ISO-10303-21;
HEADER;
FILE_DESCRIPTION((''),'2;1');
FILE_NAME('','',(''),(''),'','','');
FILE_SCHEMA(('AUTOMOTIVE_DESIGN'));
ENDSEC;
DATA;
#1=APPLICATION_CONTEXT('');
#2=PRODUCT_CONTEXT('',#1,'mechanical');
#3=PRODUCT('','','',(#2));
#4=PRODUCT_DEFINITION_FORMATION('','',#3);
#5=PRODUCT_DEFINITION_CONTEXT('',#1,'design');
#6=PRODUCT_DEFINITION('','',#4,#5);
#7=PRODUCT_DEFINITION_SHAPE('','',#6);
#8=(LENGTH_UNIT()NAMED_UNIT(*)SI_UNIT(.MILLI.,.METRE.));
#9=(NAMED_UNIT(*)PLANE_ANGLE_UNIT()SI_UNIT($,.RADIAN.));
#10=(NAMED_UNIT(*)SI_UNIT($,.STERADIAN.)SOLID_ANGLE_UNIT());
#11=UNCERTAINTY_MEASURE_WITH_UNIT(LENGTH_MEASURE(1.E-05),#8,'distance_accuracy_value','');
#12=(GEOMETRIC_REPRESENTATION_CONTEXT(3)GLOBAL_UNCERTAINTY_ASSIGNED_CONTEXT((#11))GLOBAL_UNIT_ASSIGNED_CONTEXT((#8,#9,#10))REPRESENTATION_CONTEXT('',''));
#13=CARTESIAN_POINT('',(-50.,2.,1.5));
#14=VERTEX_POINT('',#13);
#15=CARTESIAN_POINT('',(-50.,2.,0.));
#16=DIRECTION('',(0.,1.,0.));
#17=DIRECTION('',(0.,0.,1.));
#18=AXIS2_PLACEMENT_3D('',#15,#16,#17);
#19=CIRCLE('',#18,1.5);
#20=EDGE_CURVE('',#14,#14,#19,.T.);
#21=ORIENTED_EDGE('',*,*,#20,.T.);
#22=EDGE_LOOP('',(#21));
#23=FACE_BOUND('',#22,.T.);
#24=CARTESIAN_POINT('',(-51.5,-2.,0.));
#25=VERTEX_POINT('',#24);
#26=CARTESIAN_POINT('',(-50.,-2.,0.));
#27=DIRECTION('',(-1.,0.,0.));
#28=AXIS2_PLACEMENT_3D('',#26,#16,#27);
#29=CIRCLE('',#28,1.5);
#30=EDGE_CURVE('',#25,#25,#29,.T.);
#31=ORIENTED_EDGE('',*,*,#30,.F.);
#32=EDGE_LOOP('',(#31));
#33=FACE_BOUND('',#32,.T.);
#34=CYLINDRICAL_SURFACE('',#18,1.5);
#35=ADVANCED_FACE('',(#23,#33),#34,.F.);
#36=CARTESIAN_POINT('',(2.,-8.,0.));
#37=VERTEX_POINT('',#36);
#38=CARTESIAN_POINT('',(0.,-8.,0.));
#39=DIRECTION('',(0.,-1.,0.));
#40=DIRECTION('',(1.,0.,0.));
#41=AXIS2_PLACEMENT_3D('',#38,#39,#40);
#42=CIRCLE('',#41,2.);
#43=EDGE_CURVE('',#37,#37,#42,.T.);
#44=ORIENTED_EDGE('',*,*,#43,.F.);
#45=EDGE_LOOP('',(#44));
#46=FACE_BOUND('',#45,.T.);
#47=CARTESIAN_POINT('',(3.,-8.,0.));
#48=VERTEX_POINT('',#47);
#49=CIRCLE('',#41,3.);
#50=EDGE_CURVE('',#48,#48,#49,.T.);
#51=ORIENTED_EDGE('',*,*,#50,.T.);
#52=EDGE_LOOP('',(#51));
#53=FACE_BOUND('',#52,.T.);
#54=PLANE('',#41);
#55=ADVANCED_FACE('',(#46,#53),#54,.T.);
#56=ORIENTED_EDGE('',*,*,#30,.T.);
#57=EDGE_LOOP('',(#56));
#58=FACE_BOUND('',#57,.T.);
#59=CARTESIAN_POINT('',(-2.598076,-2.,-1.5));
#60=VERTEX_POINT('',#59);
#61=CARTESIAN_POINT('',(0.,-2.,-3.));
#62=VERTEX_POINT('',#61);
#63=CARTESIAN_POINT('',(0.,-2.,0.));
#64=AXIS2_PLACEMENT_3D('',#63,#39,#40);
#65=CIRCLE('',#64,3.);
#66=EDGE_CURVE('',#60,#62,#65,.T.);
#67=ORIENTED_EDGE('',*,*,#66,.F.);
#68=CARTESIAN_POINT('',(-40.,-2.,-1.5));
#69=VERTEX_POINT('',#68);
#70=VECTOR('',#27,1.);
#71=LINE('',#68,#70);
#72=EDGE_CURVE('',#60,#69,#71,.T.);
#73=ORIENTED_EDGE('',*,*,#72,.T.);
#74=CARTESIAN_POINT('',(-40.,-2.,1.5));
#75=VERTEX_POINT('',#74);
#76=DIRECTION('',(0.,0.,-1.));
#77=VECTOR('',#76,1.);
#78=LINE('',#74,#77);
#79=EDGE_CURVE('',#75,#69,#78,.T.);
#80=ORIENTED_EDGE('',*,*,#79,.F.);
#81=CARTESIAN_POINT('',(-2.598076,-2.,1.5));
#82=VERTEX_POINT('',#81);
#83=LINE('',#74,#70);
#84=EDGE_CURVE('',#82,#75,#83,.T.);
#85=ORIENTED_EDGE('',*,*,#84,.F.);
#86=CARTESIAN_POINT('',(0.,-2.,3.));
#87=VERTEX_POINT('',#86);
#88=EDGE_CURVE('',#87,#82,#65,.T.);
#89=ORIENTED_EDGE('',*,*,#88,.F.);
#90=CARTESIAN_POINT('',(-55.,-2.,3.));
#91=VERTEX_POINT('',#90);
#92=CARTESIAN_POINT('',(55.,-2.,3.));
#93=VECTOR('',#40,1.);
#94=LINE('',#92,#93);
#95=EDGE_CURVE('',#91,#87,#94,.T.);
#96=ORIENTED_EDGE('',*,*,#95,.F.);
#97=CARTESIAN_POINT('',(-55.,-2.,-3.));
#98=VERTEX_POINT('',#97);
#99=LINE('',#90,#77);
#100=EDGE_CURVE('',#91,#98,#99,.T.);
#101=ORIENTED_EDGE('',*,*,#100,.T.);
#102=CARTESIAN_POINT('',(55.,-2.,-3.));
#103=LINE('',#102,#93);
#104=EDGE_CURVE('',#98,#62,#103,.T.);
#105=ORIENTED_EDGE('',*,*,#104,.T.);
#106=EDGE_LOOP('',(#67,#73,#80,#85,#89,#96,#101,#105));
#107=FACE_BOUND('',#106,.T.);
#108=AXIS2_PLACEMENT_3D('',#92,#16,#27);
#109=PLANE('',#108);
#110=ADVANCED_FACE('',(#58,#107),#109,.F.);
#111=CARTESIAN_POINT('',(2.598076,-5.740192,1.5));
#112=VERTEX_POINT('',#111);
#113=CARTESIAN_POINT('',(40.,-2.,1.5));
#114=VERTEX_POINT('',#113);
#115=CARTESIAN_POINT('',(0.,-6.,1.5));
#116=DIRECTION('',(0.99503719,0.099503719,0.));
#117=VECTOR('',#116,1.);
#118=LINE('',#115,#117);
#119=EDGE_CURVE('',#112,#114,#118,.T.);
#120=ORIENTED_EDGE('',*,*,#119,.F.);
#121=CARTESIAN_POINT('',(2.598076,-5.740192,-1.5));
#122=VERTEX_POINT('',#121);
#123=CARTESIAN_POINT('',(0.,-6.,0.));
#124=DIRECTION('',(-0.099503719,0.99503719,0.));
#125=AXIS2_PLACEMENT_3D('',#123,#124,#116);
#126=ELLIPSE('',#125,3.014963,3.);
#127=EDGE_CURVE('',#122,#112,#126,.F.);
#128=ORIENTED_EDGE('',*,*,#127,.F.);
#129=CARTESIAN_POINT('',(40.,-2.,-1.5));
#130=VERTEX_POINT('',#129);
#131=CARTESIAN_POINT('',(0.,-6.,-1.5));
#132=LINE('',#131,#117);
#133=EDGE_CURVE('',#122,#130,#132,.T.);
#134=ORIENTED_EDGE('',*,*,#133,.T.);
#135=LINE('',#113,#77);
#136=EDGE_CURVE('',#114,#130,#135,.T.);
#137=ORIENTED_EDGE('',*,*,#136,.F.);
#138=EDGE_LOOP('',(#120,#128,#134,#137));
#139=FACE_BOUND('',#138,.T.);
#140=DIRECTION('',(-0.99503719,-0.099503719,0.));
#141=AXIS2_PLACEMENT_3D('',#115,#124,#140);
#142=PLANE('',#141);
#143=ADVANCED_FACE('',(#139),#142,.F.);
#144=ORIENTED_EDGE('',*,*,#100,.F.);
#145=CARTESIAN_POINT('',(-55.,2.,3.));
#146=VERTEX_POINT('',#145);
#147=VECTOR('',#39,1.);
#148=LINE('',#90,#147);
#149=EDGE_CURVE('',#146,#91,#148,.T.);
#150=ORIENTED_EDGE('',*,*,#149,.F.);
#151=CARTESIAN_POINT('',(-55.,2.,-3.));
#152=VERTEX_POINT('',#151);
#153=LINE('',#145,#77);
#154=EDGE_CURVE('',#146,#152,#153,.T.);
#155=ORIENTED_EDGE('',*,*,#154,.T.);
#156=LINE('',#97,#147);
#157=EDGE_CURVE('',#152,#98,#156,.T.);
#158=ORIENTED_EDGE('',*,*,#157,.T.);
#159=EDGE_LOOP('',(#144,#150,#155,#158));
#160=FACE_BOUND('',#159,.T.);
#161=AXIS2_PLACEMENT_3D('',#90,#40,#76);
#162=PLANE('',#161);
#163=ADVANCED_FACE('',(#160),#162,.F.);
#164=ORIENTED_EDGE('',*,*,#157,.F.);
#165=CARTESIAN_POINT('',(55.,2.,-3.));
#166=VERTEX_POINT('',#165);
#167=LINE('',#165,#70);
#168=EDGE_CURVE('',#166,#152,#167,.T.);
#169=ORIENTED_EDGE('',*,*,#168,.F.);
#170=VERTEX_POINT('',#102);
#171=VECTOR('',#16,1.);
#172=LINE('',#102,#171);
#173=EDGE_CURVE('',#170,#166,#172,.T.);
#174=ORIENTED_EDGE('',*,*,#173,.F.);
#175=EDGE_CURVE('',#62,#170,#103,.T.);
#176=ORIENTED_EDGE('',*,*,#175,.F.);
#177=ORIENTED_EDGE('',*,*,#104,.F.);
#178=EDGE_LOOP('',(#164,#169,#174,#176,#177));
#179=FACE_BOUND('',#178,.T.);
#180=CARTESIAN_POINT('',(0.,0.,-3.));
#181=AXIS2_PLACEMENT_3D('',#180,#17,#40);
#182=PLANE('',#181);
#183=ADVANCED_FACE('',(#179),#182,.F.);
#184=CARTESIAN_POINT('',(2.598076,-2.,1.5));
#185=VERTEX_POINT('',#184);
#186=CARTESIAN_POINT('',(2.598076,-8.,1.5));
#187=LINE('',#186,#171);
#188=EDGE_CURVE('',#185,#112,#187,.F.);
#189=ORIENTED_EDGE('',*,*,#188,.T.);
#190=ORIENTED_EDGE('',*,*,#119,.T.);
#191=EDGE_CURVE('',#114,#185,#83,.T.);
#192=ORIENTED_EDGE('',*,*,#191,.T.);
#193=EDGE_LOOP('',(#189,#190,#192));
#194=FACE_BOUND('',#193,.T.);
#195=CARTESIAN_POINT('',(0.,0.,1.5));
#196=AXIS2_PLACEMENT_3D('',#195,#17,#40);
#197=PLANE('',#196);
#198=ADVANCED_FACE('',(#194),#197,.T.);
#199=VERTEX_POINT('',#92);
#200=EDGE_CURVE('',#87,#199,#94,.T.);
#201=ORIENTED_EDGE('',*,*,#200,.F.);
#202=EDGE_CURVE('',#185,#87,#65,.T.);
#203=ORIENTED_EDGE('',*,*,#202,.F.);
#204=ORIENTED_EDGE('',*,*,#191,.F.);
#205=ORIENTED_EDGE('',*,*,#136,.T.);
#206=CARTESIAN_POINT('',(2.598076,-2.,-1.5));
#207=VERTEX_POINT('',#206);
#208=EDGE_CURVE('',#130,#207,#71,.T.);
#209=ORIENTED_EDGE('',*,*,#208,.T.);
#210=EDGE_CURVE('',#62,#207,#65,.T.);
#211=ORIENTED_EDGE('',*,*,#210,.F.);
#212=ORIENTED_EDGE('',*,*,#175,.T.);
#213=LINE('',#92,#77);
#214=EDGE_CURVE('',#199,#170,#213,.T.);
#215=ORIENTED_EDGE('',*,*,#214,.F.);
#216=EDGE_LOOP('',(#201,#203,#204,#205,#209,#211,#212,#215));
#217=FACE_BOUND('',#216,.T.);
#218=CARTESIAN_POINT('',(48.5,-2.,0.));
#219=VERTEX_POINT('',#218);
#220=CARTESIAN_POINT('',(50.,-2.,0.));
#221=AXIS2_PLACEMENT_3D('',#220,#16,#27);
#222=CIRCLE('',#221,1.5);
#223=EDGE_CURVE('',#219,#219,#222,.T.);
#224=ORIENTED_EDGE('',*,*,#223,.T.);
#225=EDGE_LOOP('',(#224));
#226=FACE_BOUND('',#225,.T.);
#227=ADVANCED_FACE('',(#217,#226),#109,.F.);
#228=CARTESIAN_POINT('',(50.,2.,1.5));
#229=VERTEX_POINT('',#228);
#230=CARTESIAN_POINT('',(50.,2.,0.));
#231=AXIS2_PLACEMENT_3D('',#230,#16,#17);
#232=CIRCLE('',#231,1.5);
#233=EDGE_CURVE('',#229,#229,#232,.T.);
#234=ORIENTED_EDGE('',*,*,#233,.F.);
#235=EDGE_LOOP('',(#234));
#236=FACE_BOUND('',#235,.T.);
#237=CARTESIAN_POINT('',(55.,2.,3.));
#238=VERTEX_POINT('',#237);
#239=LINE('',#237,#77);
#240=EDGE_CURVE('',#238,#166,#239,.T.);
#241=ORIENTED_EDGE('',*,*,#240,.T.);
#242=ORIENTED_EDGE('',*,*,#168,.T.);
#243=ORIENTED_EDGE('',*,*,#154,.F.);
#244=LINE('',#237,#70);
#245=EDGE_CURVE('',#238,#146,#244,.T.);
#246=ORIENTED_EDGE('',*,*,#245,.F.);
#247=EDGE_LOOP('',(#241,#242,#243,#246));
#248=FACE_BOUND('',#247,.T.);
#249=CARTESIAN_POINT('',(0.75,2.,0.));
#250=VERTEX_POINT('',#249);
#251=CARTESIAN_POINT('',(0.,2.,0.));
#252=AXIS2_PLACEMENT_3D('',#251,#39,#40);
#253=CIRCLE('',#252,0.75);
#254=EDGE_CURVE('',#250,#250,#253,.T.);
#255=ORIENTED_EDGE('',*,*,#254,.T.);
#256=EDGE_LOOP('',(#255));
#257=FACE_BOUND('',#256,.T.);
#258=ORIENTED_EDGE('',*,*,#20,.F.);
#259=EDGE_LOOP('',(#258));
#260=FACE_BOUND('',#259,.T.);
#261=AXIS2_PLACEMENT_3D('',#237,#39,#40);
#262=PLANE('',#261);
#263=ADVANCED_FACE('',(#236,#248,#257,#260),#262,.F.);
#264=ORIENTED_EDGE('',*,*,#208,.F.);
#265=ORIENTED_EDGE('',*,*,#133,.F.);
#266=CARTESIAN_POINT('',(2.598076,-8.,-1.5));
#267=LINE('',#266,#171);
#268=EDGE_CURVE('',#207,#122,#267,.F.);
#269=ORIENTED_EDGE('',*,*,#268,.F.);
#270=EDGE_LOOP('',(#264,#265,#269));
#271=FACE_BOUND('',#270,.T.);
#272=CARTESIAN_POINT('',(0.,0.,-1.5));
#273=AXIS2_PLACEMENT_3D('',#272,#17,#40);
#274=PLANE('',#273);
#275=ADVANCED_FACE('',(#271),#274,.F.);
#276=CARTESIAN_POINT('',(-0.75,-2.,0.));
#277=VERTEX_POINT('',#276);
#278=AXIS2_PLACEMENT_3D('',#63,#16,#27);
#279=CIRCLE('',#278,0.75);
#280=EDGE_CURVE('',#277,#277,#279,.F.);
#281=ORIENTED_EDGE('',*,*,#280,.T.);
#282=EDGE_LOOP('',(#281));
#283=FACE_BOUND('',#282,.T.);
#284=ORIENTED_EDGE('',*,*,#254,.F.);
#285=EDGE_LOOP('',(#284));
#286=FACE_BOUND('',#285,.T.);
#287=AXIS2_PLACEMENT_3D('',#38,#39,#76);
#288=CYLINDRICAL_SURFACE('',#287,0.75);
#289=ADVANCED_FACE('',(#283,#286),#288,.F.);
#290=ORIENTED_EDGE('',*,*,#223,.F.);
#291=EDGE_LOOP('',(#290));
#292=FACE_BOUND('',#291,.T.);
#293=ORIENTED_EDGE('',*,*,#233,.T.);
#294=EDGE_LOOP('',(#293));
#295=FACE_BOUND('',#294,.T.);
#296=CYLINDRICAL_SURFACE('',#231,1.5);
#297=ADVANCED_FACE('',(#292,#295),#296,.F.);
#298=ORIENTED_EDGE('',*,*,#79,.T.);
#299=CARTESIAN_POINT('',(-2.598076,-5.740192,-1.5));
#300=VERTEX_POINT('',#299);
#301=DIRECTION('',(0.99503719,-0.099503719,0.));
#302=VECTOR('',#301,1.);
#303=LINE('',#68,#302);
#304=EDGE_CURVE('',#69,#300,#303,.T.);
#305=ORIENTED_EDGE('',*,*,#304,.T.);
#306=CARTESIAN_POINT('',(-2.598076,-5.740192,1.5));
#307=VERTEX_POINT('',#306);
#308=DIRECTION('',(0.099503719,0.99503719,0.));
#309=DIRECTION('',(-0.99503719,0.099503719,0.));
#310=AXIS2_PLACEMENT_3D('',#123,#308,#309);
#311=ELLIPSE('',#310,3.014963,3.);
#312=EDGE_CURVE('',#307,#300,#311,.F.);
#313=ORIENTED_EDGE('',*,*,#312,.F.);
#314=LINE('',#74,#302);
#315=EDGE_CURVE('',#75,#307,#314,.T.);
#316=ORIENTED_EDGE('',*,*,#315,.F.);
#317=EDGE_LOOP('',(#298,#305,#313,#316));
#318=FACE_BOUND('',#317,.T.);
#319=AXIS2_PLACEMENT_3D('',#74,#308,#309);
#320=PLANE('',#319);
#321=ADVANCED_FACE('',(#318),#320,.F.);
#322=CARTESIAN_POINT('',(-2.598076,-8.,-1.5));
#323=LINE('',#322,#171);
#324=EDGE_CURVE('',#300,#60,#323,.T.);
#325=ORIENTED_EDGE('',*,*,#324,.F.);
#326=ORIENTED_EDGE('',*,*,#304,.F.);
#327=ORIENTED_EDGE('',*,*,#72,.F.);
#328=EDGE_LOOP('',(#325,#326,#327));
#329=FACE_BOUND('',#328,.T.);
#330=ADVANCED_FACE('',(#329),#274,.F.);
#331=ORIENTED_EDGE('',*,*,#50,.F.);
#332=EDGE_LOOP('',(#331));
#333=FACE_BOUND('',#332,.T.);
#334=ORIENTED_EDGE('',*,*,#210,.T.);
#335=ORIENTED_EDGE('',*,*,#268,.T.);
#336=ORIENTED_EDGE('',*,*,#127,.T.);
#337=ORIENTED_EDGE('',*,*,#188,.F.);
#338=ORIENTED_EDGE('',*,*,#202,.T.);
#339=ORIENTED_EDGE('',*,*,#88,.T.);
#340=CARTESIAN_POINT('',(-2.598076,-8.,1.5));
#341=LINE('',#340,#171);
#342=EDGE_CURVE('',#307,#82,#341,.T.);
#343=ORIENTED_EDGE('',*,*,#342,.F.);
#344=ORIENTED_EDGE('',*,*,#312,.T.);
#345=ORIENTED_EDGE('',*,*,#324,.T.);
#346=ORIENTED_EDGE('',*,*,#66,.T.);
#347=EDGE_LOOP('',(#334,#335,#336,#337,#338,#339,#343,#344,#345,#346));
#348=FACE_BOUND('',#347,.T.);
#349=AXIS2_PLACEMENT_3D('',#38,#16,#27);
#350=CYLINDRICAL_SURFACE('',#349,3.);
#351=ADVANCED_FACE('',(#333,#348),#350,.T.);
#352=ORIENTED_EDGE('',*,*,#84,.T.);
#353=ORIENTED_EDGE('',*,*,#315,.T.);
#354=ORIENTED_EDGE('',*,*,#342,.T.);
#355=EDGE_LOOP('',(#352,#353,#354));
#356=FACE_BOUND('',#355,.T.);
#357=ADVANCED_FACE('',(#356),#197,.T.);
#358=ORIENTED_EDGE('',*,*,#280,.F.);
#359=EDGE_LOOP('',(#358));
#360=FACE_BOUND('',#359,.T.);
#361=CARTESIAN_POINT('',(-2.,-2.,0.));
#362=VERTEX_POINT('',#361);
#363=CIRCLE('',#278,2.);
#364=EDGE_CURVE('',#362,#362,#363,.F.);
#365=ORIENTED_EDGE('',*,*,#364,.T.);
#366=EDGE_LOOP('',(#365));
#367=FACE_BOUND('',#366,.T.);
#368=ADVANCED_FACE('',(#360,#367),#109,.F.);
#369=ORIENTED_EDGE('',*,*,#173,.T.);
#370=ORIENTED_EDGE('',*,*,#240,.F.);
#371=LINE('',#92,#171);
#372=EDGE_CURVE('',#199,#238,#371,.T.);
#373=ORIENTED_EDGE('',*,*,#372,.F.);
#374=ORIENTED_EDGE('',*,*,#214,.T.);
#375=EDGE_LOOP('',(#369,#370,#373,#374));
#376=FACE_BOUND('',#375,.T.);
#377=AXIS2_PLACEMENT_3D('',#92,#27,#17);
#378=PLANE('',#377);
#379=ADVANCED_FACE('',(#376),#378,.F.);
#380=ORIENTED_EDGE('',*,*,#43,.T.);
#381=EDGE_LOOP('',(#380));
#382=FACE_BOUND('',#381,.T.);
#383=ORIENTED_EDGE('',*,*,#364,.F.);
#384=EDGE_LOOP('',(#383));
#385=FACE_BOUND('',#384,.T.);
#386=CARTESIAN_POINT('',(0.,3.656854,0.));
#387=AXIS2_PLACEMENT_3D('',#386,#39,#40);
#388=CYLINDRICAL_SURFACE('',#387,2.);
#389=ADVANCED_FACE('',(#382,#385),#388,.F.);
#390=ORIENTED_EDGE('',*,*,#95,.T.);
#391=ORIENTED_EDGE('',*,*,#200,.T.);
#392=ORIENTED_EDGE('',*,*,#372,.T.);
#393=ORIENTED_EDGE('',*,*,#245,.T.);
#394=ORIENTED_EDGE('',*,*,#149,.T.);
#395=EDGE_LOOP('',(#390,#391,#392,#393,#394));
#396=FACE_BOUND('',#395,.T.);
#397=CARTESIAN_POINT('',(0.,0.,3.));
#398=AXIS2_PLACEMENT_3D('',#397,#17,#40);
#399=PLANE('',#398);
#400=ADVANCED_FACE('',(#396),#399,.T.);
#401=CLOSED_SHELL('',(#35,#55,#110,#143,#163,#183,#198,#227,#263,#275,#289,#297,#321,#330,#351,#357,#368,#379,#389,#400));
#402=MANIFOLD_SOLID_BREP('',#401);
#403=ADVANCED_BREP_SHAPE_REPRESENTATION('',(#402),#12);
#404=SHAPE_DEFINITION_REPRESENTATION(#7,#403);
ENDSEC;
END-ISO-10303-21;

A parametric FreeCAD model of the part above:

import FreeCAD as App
import Part
import Sketcher
from FreeCAD import Vector
Q = App.Units.Quantity

doc = App.newDocument("Part")
body = doc.addObject("PartDesign::Body", "Body")

# Sketch on XY plane
sketch1 = body.newObject("Sketcher::SketchObject", "Sketch")
sketch1.AttachmentSupport = (doc.getObject("XY_Plane"), [""])
sketch1.MapMode = "FlatFace"
sketch1.addGeometry([
    Part.LineSegment(Vector(-55, 2, 0), Vector(-55, -2, 0)),
    Part.LineSegment(Vector(-55, -2, 0), Vector(55, -2, 0)),
    Part.LineSegment(Vector(55, -2, 0), Vector(55, 2, 0)),
    Part.LineSegment(Vector(55, 2, 0), Vector(-55, 2, 0)),
], False)
sketch1.addConstraint([
    Sketcher.Constraint("Coincident", 0, 2, 1, 1),
    Sketcher.Constraint("Coincident", 1, 2, 2, 1),
    Sketcher.Constraint("Coincident", 2, 2, 3, 1),
    Sketcher.Constraint("Coincident", 3, 2, 0, 1),
    Sketcher.Constraint("Vertical", 0),
    Sketcher.Constraint("Horizontal", 1),
    Sketcher.Constraint("Vertical", 2),
    Sketcher.Constraint("Horizontal", 3),
    Sketcher.Constraint("Symmetric", 0, 2, 2, 2, -1, 1),
    Sketcher.Constraint("DistanceX", 1, 1, 1, 2, Q("110 mm")),
    Sketcher.Constraint("DistanceY", 0, 2, 0, 1, Q("4 mm")),
])
pad1 = body.newObject("PartDesign::Pad", "Pad")
pad1.Profile = sketch1
pad1.Length = 6
pad1.Midplane = True

# Sketch on XY plane
sketch2 = body.newObject("Sketcher::SketchObject", "Sketch001")
sketch2.AttachmentSupport = (doc.getObject("XY_Plane"), [""])
sketch2.MapMode = "FlatFace"
sketch2.addGeometry([
    Part.LineSegment(Vector(-40, -2, 0), Vector(0, -6, 0)),
    Part.LineSegment(Vector(0, -6, 0), Vector(40, -2, 0)),
    Part.LineSegment(Vector(40, -2, 0), Vector(-40, -2, 0)),
], False)
sketch2.addConstraint([
    Sketcher.Constraint("Coincident", 0, 2, 1, 1),
    Sketcher.Constraint("Coincident", 1, 2, 2, 1),
    Sketcher.Constraint("Coincident", 2, 2, 0, 1),
    Sketcher.Constraint("Horizontal", 2),
    Sketcher.Constraint("PointOnObject", 0, 2, -2),
    Sketcher.Constraint("Equal", 0, 1),
    Sketcher.Constraint("DistanceX", 2, 2, 2, 1, Q("80 mm")),
    Sketcher.Constraint("DistanceY", 0, 2, -1, 1, Q("6 mm")),
    Sketcher.Constraint("DistanceY", 1, 2, -1, 1, Q("2 mm")),
])
pad2 = body.newObject("PartDesign::Pad", "Pad001")
pad2.Profile = sketch2
pad2.Length = 3
pad2.Midplane = True

# Sketch on XZ plane
sketch3 = body.newObject("Sketcher::SketchObject", "Sketch002")
sketch3.AttachmentSupport = (doc.getObject("XZ_Plane"), [""])
sketch3.MapMode = "FlatFace"
sketch3.AttachmentOffset = App.Placement(Vector(0, 0, -2), App.Rotation())
sketch3.addGeometry([
    Part.Circle(Vector(-50, 0, 0), Vector(0, 0, 1), 1.5),
    Part.Circle(Vector(50, 0, 0), Vector(0, 0, 1), 1.5),
], False)
sketch3.addConstraint([
    Sketcher.Constraint("Equal", 0, 1),
    Sketcher.Constraint("Symmetric", 0, 3, 1, 3, -1, 1),
    Sketcher.Constraint("PointOnObject", 0, 3, -1),
    Sketcher.Constraint("Diameter", 0, Q("3 mm")),
    Sketcher.Constraint("DistanceX", 0, 3, -1, 1, Q("50 mm")),
])
doc.recompute()
hole = body.newObject("PartDesign::Hole", "Hole")
hole.Profile = sketch3
hole.ThreadType = "None"
hole.Diameter = 3
hole.DepthType = "ThroughAll"
hole.Reversed = True

# Sketch on XZ plane
sketch4 = body.newObject("Sketcher::SketchObject", "Sketch003")
sketch4.AttachmentSupport = (doc.getObject("XZ_Plane"), [""])
sketch4.MapMode = "FlatFace"
sketch4.AttachmentOffset = App.Placement(Vector(0, 0, 2), App.Rotation())
sketch4.addGeometry(Part.Circle(Vector(0, 0, 0), Vector(0, 0, 1), 3), False)
sketch4.addConstraint([
    Sketcher.Constraint("Coincident", 0, 3, -1, 1),
    Sketcher.Constraint("Diameter", 0, Q("6 mm")),
])
pad3 = body.newObject("PartDesign::Pad", "Pad002")
pad3.Profile = sketch4
pad3.Length = 6

# Sketch on XZ plane
sketch5 = body.newObject("Sketcher::SketchObject", "Sketch004")
sketch5.AttachmentSupport = (doc.getObject("XZ_Plane"), [""])
sketch5.MapMode = "FlatFace"
sketch5.AttachmentOffset = App.Placement(Vector(0, 0, 8), App.Rotation())
sketch5.addGeometry(Part.Circle(Vector(0, 0, 0), Vector(0, 0, 1), 0.75), False)
sketch5.addConstraint([
    Sketcher.Constraint("Coincident", 0, 3, -1, 1),
    Sketcher.Constraint("Diameter", 0, Q("1.5 mm")),
])
doc.recompute()
hole2 = body.newObject("PartDesign::Hole", "Hole001")
hole2.Profile = sketch5
hole2.ThreadType = "None"
hole2.Diameter = 1.5
hole2.DepthType = "ThroughAll"

# Sketch on XZ plane
sketch6 = body.newObject("Sketcher::SketchObject", "Sketch005")
sketch6.AttachmentSupport = (doc.getObject("XZ_Plane"), [""])
sketch6.MapMode = "FlatFace"
sketch6.AttachmentOffset = App.Placement(Vector(0, 0, 8), App.Rotation())
sketch6.addGeometry(Part.Circle(Vector(0, 0, 0), Vector(0, 0, 1), 2), False)
sketch6.addConstraint([
    Sketcher.Constraint("Coincident", 0, 3, -1, 1),
    Sketcher.Constraint("Diameter", 0, Q("4 mm")),
])
pocket1 = body.newObject("PartDesign::Pocket", "Pocket")
pocket1.Profile = sketch6
pocket1.Length = 6

doc.recompute()
